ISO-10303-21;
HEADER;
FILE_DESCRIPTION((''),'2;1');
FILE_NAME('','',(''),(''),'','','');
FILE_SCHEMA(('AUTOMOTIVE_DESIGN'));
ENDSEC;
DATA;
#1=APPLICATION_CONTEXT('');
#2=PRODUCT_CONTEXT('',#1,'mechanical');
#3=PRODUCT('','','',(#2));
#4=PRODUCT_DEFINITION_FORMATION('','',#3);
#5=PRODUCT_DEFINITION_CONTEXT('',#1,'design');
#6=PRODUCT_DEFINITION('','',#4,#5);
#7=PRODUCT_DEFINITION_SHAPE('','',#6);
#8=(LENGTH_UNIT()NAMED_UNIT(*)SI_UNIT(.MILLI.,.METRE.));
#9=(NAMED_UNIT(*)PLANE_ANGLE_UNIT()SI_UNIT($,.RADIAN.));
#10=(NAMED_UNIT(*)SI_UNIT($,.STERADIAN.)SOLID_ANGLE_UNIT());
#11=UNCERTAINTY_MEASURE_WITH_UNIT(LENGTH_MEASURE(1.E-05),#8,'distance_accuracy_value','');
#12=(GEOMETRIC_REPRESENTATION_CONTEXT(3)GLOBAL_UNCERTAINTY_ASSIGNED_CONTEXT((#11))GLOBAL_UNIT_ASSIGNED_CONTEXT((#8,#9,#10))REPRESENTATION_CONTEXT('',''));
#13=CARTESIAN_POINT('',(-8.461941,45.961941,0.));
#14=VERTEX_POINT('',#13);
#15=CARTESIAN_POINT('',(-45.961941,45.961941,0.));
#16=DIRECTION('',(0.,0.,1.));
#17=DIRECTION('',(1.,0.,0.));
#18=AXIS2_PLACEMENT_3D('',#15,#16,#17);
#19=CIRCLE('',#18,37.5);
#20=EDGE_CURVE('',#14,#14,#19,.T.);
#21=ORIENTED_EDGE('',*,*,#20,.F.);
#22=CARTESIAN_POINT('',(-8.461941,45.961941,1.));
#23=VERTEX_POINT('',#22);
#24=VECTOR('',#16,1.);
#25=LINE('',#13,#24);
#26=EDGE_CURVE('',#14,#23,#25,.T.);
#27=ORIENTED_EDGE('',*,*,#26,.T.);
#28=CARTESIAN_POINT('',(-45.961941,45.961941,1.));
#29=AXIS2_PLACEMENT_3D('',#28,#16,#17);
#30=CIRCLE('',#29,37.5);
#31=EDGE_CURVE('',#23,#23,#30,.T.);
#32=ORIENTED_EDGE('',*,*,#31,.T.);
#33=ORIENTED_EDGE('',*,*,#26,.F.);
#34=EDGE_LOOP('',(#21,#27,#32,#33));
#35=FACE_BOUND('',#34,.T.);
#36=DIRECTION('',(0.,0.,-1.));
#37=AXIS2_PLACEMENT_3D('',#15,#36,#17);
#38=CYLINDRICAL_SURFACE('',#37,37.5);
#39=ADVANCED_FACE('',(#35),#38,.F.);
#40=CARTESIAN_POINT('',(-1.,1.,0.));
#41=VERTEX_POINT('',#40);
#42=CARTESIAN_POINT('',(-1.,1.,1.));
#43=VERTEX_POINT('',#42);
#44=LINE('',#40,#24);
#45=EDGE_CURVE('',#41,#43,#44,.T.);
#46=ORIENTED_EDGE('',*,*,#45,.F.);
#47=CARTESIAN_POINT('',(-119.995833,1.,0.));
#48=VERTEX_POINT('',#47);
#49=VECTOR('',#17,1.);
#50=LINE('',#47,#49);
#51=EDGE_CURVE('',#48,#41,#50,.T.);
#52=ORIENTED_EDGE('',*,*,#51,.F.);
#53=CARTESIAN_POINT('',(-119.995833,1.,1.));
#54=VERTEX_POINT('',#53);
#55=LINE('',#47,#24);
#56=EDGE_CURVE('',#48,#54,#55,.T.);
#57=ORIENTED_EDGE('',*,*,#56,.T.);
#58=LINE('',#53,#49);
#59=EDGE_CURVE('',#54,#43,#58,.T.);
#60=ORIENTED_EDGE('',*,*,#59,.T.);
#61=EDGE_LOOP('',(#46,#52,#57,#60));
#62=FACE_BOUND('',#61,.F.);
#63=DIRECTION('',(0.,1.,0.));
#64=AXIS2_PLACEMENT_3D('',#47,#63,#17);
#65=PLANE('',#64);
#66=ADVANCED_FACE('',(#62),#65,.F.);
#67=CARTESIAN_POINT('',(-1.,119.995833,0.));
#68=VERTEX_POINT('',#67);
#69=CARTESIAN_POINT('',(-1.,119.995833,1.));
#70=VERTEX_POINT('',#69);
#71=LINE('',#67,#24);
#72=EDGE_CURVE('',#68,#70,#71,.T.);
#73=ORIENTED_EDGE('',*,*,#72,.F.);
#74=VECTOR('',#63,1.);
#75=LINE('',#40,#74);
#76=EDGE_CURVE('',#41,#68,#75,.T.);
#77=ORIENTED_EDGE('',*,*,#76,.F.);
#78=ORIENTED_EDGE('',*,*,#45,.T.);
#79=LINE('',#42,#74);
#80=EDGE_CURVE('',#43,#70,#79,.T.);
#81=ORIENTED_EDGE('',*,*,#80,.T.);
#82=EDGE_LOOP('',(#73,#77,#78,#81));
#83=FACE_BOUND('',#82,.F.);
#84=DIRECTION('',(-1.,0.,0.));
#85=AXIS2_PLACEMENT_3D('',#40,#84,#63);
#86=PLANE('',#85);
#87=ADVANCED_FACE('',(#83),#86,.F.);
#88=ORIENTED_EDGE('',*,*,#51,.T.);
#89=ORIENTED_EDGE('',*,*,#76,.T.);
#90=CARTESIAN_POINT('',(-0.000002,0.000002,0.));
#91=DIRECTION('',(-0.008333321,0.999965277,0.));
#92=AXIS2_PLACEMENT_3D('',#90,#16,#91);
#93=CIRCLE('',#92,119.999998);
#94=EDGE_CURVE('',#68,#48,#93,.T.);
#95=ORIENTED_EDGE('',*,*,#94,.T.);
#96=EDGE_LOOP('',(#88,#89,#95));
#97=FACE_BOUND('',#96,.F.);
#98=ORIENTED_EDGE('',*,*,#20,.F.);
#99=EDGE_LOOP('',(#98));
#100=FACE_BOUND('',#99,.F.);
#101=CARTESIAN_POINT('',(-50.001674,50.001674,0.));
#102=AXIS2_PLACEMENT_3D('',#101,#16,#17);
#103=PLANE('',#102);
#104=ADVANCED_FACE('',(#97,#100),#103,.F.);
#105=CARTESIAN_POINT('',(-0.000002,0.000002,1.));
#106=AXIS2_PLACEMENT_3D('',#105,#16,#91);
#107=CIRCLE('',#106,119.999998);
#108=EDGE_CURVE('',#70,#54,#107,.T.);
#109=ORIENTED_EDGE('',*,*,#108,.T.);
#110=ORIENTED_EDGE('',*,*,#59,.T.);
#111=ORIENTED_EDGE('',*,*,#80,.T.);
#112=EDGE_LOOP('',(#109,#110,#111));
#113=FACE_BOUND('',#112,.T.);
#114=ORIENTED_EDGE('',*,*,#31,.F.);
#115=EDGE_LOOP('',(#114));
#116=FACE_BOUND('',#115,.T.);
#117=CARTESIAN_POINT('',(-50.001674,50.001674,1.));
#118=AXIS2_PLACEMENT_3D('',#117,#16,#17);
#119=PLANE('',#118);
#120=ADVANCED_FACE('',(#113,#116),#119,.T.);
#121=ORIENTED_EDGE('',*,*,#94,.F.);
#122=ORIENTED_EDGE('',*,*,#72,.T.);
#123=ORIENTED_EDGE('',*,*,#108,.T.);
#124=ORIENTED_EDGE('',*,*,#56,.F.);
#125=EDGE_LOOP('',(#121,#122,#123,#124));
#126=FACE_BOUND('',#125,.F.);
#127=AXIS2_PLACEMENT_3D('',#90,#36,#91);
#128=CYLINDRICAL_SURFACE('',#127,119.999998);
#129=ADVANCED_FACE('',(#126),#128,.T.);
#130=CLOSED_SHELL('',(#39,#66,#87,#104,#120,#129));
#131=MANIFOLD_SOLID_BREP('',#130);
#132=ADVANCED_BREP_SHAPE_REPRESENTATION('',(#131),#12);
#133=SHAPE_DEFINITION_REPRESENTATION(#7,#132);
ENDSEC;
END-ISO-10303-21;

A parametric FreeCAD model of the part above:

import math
import FreeCAD as App
import Part
import Sketcher

V = App.Vector
Q = App.Units.Quantity

doc = App.newDocument("Part")
body = doc.addObject("PartDesign::Body", "Body")

# Sketch on XY plane
sketch1 = doc.addObject("Sketcher::SketchObject", "Sketch")
body.addObject(sketch1)
sketch1.AttachmentSupport = (doc.XY_Plane, [""])
sketch1.MapMode = "FlatFace"
sketch1.addGeometry(Part.LineSegment(V(-1, 1, 0), V(-1, 120, 0)), False)
sketch1.addGeometry(Part.ArcOfCircle(Part.Circle(V(0, 0, 0), V(0, 0, 1), 120), math.radians(90), math.radians(180)), False)
sketch1.addGeometry(Part.LineSegment(V(-120, 1, 0), V(-1, 1, 0)), False)
sketch1.addGeometry(Part.Circle(V(-46, 46, 0), V(0, 0, 1), 38), False)
sketch1.addConstraint(Sketcher.Constraint("Coincident", 0, 2, 1, 1))
sketch1.addConstraint(Sketcher.Constraint("Coincident", 1, 2, 2, 1))
sketch1.addConstraint(Sketcher.Constraint("Coincident", 2, 2, 0, 1))
sketch1.addConstraint(Sketcher.Constraint("Vertical", 0))
sketch1.addConstraint(Sketcher.Constraint("Horizontal", 2))
sketch1.addConstraint(Sketcher.Constraint("Coincident", 1, 3, -1, 1))
sketch1.addConstraint(Sketcher.Constraint("Equal", 2, 0))
sketch1.addConstraint(Sketcher.Constraint("Diameter", 3, Q("75 mm")))
sketch1.addConstraint(Sketcher.Constraint("Radius", 1, Q("119.999998 mm")))
sketch1.addConstraint(Sketcher.Constraint("DistanceX", 0, 2, -1, 1, Q("1 mm")))
sketch1.addConstraint(Sketcher.Constraint("DistanceX", 3, 3, -1, 1, Q("45.961941 mm")))
sketch1.addConstraint(Sketcher.Constraint("DistanceY", -1, 1, 3, 3, Q("45.961941 mm")))
pad1 = doc.addObject("PartDesign::Pad", "Pad")
body.addObject(pad1)
pad1.Profile = sketch1
pad1.Length = 1

doc.recompute()
